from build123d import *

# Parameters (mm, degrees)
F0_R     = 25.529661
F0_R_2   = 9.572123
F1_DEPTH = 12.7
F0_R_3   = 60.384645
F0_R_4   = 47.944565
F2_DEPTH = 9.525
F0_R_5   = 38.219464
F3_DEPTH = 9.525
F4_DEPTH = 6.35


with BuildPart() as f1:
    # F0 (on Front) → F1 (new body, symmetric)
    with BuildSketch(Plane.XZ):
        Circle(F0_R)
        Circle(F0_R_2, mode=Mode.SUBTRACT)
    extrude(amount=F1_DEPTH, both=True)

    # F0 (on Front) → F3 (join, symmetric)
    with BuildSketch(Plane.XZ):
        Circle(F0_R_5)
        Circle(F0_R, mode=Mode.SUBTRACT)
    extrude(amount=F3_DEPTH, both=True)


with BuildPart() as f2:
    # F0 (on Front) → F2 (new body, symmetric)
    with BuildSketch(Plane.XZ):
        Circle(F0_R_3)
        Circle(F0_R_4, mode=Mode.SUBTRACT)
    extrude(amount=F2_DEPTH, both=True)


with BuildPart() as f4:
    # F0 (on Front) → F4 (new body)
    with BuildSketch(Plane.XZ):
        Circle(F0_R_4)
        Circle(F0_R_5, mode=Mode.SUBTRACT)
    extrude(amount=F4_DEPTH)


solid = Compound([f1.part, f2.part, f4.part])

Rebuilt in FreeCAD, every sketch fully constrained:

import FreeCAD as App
import Part
import Sketcher

V = App.Vector

doc = App.newDocument("Part")
params = doc.addObject("Spreadsheet::Sheet", "Params")
for row, (alias, value) in enumerate([
    ("pad1_length", "1 in"),
    ("pad2_length", "0.75 in"),
    ("pad3_length", "0.75 in"),
    ("pad4_length", "0.25 in"),
], start=1):
    params.set(f"A{row}", alias)
    params.set(f"B{row}", "=" + value)
    params.setAlias(f"B{row}", alias)

body = doc.addObject("PartDesign::Body", "Body")

# Sketch on XZ plane
sketch1 = body.newObject("Sketcher::SketchObject", "Sketch")
sketch1.AttachmentSupport = (doc.getObject("XZ_Plane"), [""])
sketch1.MapMode = "FlatFace"
sketch1.addGeometry(Part.Circle(V(0, 0, 0), V(0, 0, 1), 25.529661), False)
sketch1.addGeometry(Part.Circle(V(0, 0, 0), V(0, 0, 1), 9.572123), False)
sketch1.addConstraint(Sketcher.Constraint("Coincident", 0, 3, -1, 1))
sketch1.addConstraint(Sketcher.Constraint("Coincident", 1, 3, -1, 1))
sketch1.addConstraint(Sketcher.Constraint("Diameter", 0, 51.059322))
sketch1.addConstraint(Sketcher.Constraint("Diameter", 1, 19.144246))
pad1 = body.newObject("PartDesign::Pad", "Pad")
pad1.Profile = sketch1
pad1.setExpression("Length", "Params.pad1_length")
pad1.Midplane = True

# Sketch on XZ plane
sketch2 = body.newObject("Sketcher::SketchObject", "Sketch001")
sketch2.AttachmentSupport = (doc.getObject("XZ_Plane"), [""])
sketch2.MapMode = "FlatFace"
sketch2.addGeometry(Part.Circle(V(0, 0, 0), V(0, 0, 1), 38.219464), False)
sketch2.addGeometry(Part.Circle(V(0, 0, 0), V(0, 0, 1), 25.529661), False)
sketch2.addConstraint(Sketcher.Constraint("Coincident", 0, 3, -1, 1))
sketch2.addConstraint(Sketcher.Constraint("Coincident", 1, 3, -1, 1))
sketch2.addConstraint(Sketcher.Constraint("Diameter", 0, 76.438928))
sketch2.addConstraint(Sketcher.Constraint("Diameter", 1, 51.059322))
pad2 = body.newObject("PartDesign::Pad", "Pad001")
pad2.Profile = sketch2
pad2.setExpression("Length", "Params.pad2_length")
pad2.Midplane = True
body2 = doc.addObject("PartDesign::Body", "Body001")

# Sketch on XZ plane
sketch3 = body2.newObject("Sketcher::SketchObject", "Sketch002")
sketch3.AttachmentSupport = (doc.getObject("XZ_Plane001"), [""])
sketch3.MapMode = "FlatFace"
sketch3.addGeometry(Part.Circle(V(0, 0, 0), V(0, 0, 1), 60.384645), False)
sketch3.addGeometry(Part.Circle(V(0, 0, 0), V(0, 0, 1), 47.944565), False)
sketch3.addConstraint(Sketcher.Constraint("Coincident", 0, 3, -1, 1))
sketch3.addConstraint(Sketcher.Constraint("Coincident", 1, 3, -1, 1))
sketch3.addConstraint(Sketcher.Constraint("Diameter", 0, 120.76929))
sketch3.addConstraint(Sketcher.Constraint("Diameter", 1, 95.88913))
pad3 = body2.newObject("PartDesign::Pad", "Pad002")
pad3.Profile = sketch3
pad3.setExpression("Length", "Params.pad3_length")
pad3.Midplane = True
body3 = doc.addObject("PartDesign::Body", "Body002")

# Sketch on XZ plane
sketch4 = body3.newObject("Sketcher::SketchObject", "Sketch003")
sketch4.AttachmentSupport = (doc.getObject("XZ_Plane002"), [""])
sketch4.MapMode = "FlatFace"
sketch4.addGeometry(Part.Circle(V(0, 0, 0), V(0, 0, 1), 47.944565), False)
sketch4.addGeometry(Part.Circle(V(0, 0, 0), V(0, 0, 1), 38.219464), False)
sketch4.addConstraint(Sketcher.Constraint("Coincident", 0, 3, -1, 1))
sketch4.addConstraint(Sketcher.Constraint("Coincident", 1, 3, -1, 1))
sketch4.addConstraint(Sketcher.Constraint("Diameter", 0, 95.88913))
sketch4.addConstraint(Sketcher.Constraint("Diameter", 1, 76.438928))
pad4 = body3.newObject("PartDesign::Pad", "Pad003")
pad4.Profile = sketch4
pad4.setExpression("Length", "Params.pad4_length")

doc.recompute()
